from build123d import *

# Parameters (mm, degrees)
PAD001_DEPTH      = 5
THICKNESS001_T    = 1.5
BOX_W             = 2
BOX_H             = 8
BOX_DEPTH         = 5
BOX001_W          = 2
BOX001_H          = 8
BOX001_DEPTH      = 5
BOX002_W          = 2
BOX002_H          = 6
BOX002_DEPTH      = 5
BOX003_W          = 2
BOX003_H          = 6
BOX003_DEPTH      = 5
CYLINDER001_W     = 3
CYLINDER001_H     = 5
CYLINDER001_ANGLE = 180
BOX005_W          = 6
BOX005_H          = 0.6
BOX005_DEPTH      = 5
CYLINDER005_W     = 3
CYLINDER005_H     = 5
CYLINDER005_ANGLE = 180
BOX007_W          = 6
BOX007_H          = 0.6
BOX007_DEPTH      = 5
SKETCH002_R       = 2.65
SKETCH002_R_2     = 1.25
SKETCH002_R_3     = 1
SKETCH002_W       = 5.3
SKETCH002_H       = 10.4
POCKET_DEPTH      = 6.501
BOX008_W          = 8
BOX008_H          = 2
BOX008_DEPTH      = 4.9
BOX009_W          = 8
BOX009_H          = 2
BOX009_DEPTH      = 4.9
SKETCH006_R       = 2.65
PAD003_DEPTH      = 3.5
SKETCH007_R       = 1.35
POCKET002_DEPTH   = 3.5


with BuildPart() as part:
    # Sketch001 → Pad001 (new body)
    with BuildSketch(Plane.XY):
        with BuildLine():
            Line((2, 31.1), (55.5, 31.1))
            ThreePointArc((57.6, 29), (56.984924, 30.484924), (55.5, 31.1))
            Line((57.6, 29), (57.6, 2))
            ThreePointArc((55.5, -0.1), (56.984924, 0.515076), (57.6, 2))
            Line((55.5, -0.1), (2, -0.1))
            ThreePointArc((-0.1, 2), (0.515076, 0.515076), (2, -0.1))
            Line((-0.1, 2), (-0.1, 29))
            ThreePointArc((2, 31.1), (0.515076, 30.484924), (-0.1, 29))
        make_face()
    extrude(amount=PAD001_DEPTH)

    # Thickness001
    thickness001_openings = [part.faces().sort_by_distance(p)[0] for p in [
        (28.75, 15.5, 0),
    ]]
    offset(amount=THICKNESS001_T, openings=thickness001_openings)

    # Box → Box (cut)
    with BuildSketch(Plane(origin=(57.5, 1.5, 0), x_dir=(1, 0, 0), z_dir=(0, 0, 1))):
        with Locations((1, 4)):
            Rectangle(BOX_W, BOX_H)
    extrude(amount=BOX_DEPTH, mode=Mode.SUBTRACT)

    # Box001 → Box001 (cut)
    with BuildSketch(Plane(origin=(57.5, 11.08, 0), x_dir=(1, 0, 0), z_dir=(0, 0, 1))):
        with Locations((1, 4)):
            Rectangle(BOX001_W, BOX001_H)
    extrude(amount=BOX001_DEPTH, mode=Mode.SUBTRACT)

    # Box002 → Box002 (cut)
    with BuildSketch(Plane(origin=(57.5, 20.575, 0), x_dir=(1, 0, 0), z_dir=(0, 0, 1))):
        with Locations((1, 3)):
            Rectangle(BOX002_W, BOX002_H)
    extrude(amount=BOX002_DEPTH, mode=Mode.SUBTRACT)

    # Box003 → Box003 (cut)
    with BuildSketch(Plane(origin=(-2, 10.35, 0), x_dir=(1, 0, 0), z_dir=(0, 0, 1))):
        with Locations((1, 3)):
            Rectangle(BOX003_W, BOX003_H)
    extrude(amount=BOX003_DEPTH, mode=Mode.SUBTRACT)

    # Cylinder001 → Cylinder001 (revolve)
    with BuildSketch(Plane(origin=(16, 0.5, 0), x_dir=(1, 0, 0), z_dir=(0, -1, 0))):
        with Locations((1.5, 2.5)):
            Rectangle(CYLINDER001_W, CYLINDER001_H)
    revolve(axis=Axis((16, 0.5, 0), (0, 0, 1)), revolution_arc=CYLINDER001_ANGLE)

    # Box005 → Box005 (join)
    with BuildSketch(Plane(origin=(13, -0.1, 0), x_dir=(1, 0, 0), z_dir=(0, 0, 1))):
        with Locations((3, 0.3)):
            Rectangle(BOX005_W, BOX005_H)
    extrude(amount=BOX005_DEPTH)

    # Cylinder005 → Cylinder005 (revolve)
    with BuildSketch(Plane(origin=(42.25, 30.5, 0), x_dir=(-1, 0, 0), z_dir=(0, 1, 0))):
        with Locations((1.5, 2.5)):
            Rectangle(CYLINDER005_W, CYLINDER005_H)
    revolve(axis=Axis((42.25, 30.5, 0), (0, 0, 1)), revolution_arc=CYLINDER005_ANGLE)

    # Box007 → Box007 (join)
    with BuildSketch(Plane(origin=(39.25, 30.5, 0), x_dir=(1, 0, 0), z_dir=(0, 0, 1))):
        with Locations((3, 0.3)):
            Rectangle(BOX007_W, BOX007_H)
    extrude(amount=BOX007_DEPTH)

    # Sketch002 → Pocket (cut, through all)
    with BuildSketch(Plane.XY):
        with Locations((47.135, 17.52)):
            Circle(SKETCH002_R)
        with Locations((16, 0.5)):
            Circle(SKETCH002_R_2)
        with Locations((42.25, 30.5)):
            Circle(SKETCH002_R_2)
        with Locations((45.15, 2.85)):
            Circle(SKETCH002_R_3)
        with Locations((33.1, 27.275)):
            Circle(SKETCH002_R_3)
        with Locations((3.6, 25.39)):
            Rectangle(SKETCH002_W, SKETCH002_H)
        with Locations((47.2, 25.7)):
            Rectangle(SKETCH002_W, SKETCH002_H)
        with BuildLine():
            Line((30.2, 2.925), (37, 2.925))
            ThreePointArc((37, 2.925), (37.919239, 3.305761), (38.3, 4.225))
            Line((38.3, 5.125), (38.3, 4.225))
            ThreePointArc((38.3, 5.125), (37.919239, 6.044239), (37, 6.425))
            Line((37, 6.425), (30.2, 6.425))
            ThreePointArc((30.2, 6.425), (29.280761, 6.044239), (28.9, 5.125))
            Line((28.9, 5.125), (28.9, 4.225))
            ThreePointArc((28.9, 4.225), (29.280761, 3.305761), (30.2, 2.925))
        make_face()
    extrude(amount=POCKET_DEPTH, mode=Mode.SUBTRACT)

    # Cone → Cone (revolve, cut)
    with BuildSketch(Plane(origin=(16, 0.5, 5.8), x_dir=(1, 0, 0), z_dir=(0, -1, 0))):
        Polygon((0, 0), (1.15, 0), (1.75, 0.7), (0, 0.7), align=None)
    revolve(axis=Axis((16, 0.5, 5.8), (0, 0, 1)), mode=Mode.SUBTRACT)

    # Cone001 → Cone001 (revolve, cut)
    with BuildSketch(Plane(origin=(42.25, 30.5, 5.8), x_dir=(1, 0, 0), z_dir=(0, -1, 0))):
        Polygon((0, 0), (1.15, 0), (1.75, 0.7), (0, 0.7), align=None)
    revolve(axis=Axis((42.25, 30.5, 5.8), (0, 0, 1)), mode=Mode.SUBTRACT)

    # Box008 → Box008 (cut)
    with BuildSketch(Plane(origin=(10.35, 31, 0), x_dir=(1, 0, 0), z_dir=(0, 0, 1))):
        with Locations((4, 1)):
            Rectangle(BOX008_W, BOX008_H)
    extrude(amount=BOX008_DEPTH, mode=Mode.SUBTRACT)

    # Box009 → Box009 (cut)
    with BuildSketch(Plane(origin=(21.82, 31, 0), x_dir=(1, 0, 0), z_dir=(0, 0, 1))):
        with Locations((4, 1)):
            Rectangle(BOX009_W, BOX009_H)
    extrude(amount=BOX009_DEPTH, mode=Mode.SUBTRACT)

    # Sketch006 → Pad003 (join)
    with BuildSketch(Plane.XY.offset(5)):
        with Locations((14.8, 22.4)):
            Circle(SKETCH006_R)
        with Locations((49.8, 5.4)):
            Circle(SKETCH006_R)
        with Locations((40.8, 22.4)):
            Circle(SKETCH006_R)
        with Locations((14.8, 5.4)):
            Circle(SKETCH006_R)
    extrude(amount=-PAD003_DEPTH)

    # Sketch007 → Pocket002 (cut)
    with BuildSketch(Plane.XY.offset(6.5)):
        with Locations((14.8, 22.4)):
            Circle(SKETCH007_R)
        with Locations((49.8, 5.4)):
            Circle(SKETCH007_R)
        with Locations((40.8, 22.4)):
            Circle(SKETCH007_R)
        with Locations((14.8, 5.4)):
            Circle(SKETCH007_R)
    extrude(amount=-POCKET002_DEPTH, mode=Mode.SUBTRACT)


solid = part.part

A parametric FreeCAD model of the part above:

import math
import FreeCAD as App
import Part
import Sketcher
from FreeCAD import Vector


def faces_at(feature, points):
    """Names of the faces that lie closest to the given points."""
    faces = feature.Shape.Faces
    near = lambda p: min(range(len(faces)), key=lambda i: faces[i].distToShape(Part.Vertex(*p))[0])
    return sorted({f"Face{near(p) + 1}" for p in points})

doc = App.newDocument("Part")
body = doc.addObject("PartDesign::Body", "Body")

sketch1 = body.newObject("Sketcher::SketchObject", "Sketch")
sketch1.AttachmentSupport = (doc.getObject("XY_Plane"), [""])
sketch1.MapMode = "FlatFace"
sketch1.addGeometry([
    Part.LineSegment(Vector(55.5, 31.1, 0), Vector(2, 31.1, 0)),
    Part.ArcOfCircle(Part.Circle(Vector(2, 29, 0), Vector(0, 0, 1), 2.1), math.radians(90), math.radians(180)),
    Part.LineSegment(Vector(-0.1, 29, 0), Vector(-0.1, 2, 0)),
    Part.ArcOfCircle(Part.Circle(Vector(2, 2, 0), Vector(0, 0, 1), 2.1), math.radians(-180), math.radians(-90)),
    Part.LineSegment(Vector(2, -0.1, 0), Vector(55.5, -0.1, 0)),
    Part.ArcOfCircle(Part.Circle(Vector(55.5, 2, 0), Vector(0, 0, 1), 2.1), math.radians(-90), math.radians(0)),
    Part.LineSegment(Vector(57.6, 2, 0), Vector(57.6, 29, 0)),
    Part.ArcOfCircle(Part.Circle(Vector(55.5, 29, 0), Vector(0, 0, 1), 2.1), math.radians(0), math.radians(90)),
], False)
sketch1.addConstraint([
    Sketcher.Constraint("Tangent", 0, 2, 1, 1),
    Sketcher.Constraint("Tangent", 1, 2, 2, 1),
    Sketcher.Constraint("Tangent", 2, 2, 3, 1),
    Sketcher.Constraint("Tangent", 3, 2, 4, 1),
    Sketcher.Constraint("Tangent", 4, 2, 5, 1),
    Sketcher.Constraint("Tangent", 5, 2, 6, 1),
    Sketcher.Constraint("Tangent", 6, 2, 7, 1),
    Sketcher.Constraint("Tangent", 7, 2, 0, 1),
    Sketcher.Constraint("Horizontal", 0),
    Sketcher.Constraint("Vertical", 2),
    Sketcher.Constraint("Horizontal", 4),
    Sketcher.Constraint("Vertical", 6),
    Sketcher.Constraint("Equal", 1, 3),
    Sketcher.Constraint("Equal", 3, 5),
    Sketcher.Constraint("Equal", 5, 7),
    Sketcher.Constraint("Radius", 1, 2.100001),
    Sketcher.Constraint("DistanceY", 2, 2, 2, 1, 27.0),
    Sketcher.Constraint("DistanceX", 0, 2, 0, 1, 53.5),
    Sketcher.Constraint("DistanceX", -1, 1, 1, 3, 2.000001),
    Sketcher.Constraint("DistanceY", -1, 1, 1, 3, 28.999999),
])
pad1 = body.newObject("PartDesign::Pad", "Pad")
pad1.Profile = sketch1
pad1.Length = 5
doc.recompute()

thickness = body.newObject("PartDesign::Thickness", "Thickness")
thickness.Base = (pad1, faces_at(pad1, [(28.75, 15.5, 0)]))
thickness.Value = 1.5
thickness.Reversed = False
thickness.Join = "Arc"

sketch2 = body.newObject("Sketcher::SketchObject", "Sketch001")
sketch2.AttachmentSupport = (doc.getObject("XY_Plane"), [""])
sketch2.MapMode = "FlatFace"
sketch2.addGeometry([
    Part.LineSegment(Vector(57.5, 9.5, 0), Vector(57.5, 1.5, 0)),
    Part.LineSegment(Vector(57.5, 1.5, 0), Vector(59.5, 1.5, 0)),
    Part.LineSegment(Vector(59.5, 1.5, 0), Vector(59.5, 9.5, 0)),
    Part.LineSegment(Vector(59.5, 9.5, 0), Vector(57.5, 9.5, 0)),
], False)
sketch2.addConstraint([
    Sketcher.Constraint("Coincident", 0, 2, 1, 1),
    Sketcher.Constraint("Coincident", 1, 2, 2, 1),
    Sketcher.Constraint("Coincident", 2, 2, 3, 1),
    Sketcher.Constraint("Coincident", 3, 2, 0, 1),
    Sketcher.Constraint("Vertical", 0),
    Sketcher.Constraint("Horizontal", 1),
    Sketcher.Constraint("Vertical", 2),
    Sketcher.Constraint("Horizontal", 3),
    Sketcher.Constraint("DistanceX", 1, 1, 1, 2, 2.0),
    Sketcher.Constraint("DistanceY", 0, 2, 0, 1, 8.0),
    Sketcher.Constraint("DistanceX", -1, 1, 0, 2, 57.5),
    Sketcher.Constraint("DistanceY", -1, 1, 0, 2, 1.5),
])
pocket1 = body.newObject("PartDesign::Pocket", "Pocket")
pocket1.Profile = sketch2
pocket1.Length = 5
pocket1.Reversed = True

sketch3 = body.newObject("Sketcher::SketchObject", "Sketch002")
sketch3.AttachmentSupport = (doc.getObject("XY_Plane"), [""])
sketch3.MapMode = "FlatFace"
sketch3.addGeometry([
    Part.LineSegment(Vector(57.5, 19.1, 0), Vector(57.5, 11.1, 0)),
    Part.LineSegment(Vector(57.5, 11.1, 0), Vector(59.5, 11.1, 0)),
    Part.LineSegment(Vector(59.5, 11.1, 0), Vector(59.5, 19.1, 0)),
    Part.LineSegment(Vector(59.5, 19.1, 0), Vector(57.5, 19.1, 0)),
], False)
sketch3.addConstraint([
    Sketcher.Constraint("Coincident", 0, 2, 1, 1),
    Sketcher.Constraint("Coincident", 1, 2, 2, 1),
    Sketcher.Constraint("Coincident", 2, 2, 3, 1),
    Sketcher.Constraint("Coincident", 3, 2, 0, 1),
    Sketcher.Constraint("Vertical", 0),
    Sketcher.Constraint("Horizontal", 1),
    Sketcher.Constraint("Vertical", 2),
    Sketcher.Constraint("Horizontal", 3),
    Sketcher.Constraint("DistanceX", 1, 1, 1, 2, 2.0),
    Sketcher.Constraint("DistanceY", 0, 2, 0, 1, 8.0),
    Sketcher.Constraint("DistanceX", -1, 1, 0, 2, 57.5),
    Sketcher.Constraint("DistanceY", -1, 1, 0, 2, 11.08),
])
pocket2 = body.newObject("PartDesign::Pocket", "Pocket001")
pocket2.Profile = sketch3
pocket2.Length = 5
pocket2.Reversed = True

sketch4 = body.newObject("Sketcher::SketchObject", "Sketch003")
sketch4.AttachmentSupport = (doc.getObject("XY_Plane"), [""])
sketch4.MapMode = "FlatFace"
sketch4.addGeometry([
    Part.LineSegment(Vector(57.5, 26.6, 0), Vector(57.5, 20.6, 0)),
    Part.LineSegment(Vector(57.5, 20.6, 0), Vector(59.5, 20.6, 0)),
    Part.LineSegment(Vector(59.5, 20.6, 0), Vector(59.5, 26.6, 0)),
    Part.LineSegment(Vector(59.5, 26.6, 0), Vector(57.5, 26.6, 0)),
], False)
sketch4.addConstraint([
    Sketcher.Constraint("Coincident", 0, 2, 1, 1),
    Sketcher.Constraint("Coincident", 1, 2, 2, 1),
    Sketcher.Constraint("Coincident", 2, 2, 3, 1),
    Sketcher.Constraint("Coincident", 3, 2, 0, 1),
    Sketcher.Constraint("Vertical", 0),
    Sketcher.Constraint("Horizontal", 1),
    Sketcher.Constraint("Vertical", 2),
    Sketcher.Constraint("Horizontal", 3),
    Sketcher.Constraint("DistanceX", 1, 1, 1, 2, 2.0),
    Sketcher.Constraint("DistanceY", 0, 2, 0, 1, 6.0),
    Sketcher.Constraint("DistanceX", -1, 1, 0, 2, 57.5),
    Sketcher.Constraint("DistanceY", -1, 1, 0, 2, 20.575),
])
pocket3 = body.newObject("PartDesign::Pocket", "Pocket002")
pocket3.Profile = sketch4
pocket3.Length = 5
pocket3.Reversed = True

sketch5 = body.newObject("Sketcher::SketchObject", "Sketch004")
sketch5.AttachmentSupport = (doc.getObject("XY_Plane"), [""])
sketch5.MapMode = "FlatFace"
sketch5.addGeometry([
    Part.LineSegment(Vector(-2, 16.4, 0), Vector(-2, 10.3, 0)),
    Part.LineSegment(Vector(-2, 10.3, 0), Vector(0, 10.3, 0)),
    Part.LineSegment(Vector(0, 10.3, 0), Vector(0, 16.4, 0)),
    Part.LineSegment(Vector(0, 16.4, 0), Vector(-2, 16.4, 0)),
], False)
sketch5.addConstraint([
    Sketcher.Constraint("Coincident", 0, 2, 1, 1),
    Sketcher.Constraint("Coincident", 1, 2, 2, 1),
    Sketcher.Constraint("Coincident", 2, 2, 3, 1),
    Sketcher.Constraint("Coincident", 3, 2, 0, 1),
    Sketcher.Constraint("Vertical", 0),
    Sketcher.Constraint("Horizontal", 1),
    Sketcher.Constraint("Vertical", 2),
    Sketcher.Constraint("Horizontal", 3),
    Sketcher.Constraint("PointOnObject", 1, 2, -2),
    Sketcher.Constraint("DistanceX", 1, 1, 1, 2, 2.0),
    Sketcher.Constraint("DistanceY", 0, 2, 0, 1, 6.0),
    Sketcher.Constraint("DistanceY", -1, 1, 0, 2, 10.35),
])
pocket4 = body.newObject("PartDesign::Pocket", "Pocket003")
pocket4.Profile = sketch5
pocket4.Length = 5
pocket4.Reversed = True

sketch6 = body.newObject("Sketcher::SketchObject", "Sketch005")
sketch6.AttachmentSupport = (doc.getObject("XZ_Plane"), [""])
sketch6.MapMode = "FlatFace"
sketch6.AttachmentOffset = App.Placement(Vector(0, 0, -0.5), App.Rotation())
sketch6.addGeometry([
    Part.LineSegment(Vector(16, 5, 0), Vector(16, 0, 0)),
    Part.LineSegment(Vector(16, 0, 0), Vector(19, 0, 0)),
    Part.LineSegment(Vector(19, 0, 0), Vector(19, 5, 0)),
    Part.LineSegment(Vector(19, 5, 0), Vector(16, 5, 0)),
], False)
sketch6.addGeometry(Part.LineSegment(Vector(16, 0, 0), Vector(16, 5, 0)), True)
sketch6.addConstraint([
    Sketcher.Constraint("Coincident", 0, 2, 1, 1),
    Sketcher.Constraint("Coincident", 1, 2, 2, 1),
    Sketcher.Constraint("Coincident", 2, 2, 3, 1),
    Sketcher.Constraint("Coincident", 3, 2, 0, 1),
    Sketcher.Constraint("Vertical", 0),
    Sketcher.Constraint("Horizontal", 1),
    Sketcher.Constraint("Vertical", 2),
    Sketcher.Constraint("Horizontal", 3),
    Sketcher.Constraint("Vertical", 4),
    Sketcher.Constraint("Coincident", 4, 1, 0, 2),
    Sketcher.Constraint("PointOnObject", 0, 2, -1),
    Sketcher.Constraint("Horizontal", 2, 2, 4, 2),
    Sketcher.Constraint("DistanceX", 1, 1, 1, 2, 3.0),
    Sketcher.Constraint("DistanceY", 0, 2, 0, 1, 5.0),
    Sketcher.Constraint("DistanceX", -1, 1, 0, 2, 16.0),
])
revolution = body.newObject("PartDesign::Revolution", "Revolution")
revolution.Profile = sketch6
revolution.ReferenceAxis = (sketch6, ["Axis0"])
revolution.Angle = 180

sketch7 = body.newObject("Sketcher::SketchObject", "Sketch006")
sketch7.AttachmentSupport = (doc.getObject("XY_Plane"), [""])
sketch7.MapMode = "FlatFace"
sketch7.addGeometry([
    Part.LineSegment(Vector(13, 0.5, 0), Vector(13, -0.1, 0)),
    Part.LineSegment(Vector(13, -0.1, 0), Vector(19, -0.1, 0)),
    Part.LineSegment(Vector(19, -0.1, 0), Vector(19, 0.5, 0)),
    Part.LineSegment(Vector(19, 0.5, 0), Vector(13, 0.5, 0)),
], False)
sketch7.addConstraint([
    Sketcher.Constraint("Coincident", 0, 2, 1, 1),
    Sketcher.Constraint("Coincident", 1, 2, 2, 1),
    Sketcher.Constraint("Coincident", 2, 2, 3, 1),
    Sketcher.Constraint("Coincident", 3, 2, 0, 1),
    Sketcher.Constraint("Vertical", 0),
    Sketcher.Constraint("Horizontal", 1),
    Sketcher.Constraint("Vertical", 2),
    Sketcher.Constraint("Horizontal", 3),
    Sketcher.Constraint("DistanceX", 1, 1, 1, 2, 6.0),
    Sketcher.Constraint("DistanceY", 0, 2, 0, 1, 0.6),
    Sketcher.Constraint("DistanceX", -1, 1, 0, 2, 13.0),
    Sketcher.Constraint("DistanceY", 0, 2, -1, 1, 0.1),
])
pad2 = body.newObject("PartDesign::Pad", "Pad001")
pad2.Profile = sketch7
pad2.Length = 5

sketch8 = body.newObject("Sketcher::SketchObject", "Sketch007")
sketch8.AttachmentSupport = (doc.getObject("XZ_Plane"), [""])
sketch8.MapMode = "FlatFace"
sketch8.AttachmentOffset = App.Placement(Vector(0, 0, -30.5), App.Rotation())
sketch8.addGeometry([
    Part.LineSegment(Vector(42.2, 5, 0), Vector(42.2, 0, 0)),
    Part.LineSegment(Vector(42.2, 0, 0), Vector(39.2, 0, 0)),
    Part.LineSegment(Vector(39.2, 0, 0), Vector(39.2, 5, 0)),
    Part.LineSegment(Vector(39.2, 5, 0), Vector(42.2, 5, 0)),
], False)
sketch8.addGeometry(Part.LineSegment(Vector(42.2, 0, 0), Vector(42.2, 5, 0)), True)
sketch8.addConstraint([
    Sketcher.Constraint("Coincident", 0, 2, 1, 1),
    Sketcher.Constraint("Coincident", 1, 2, 2, 1),
    Sketcher.Constraint("Coincident", 2, 2, 3, 1),
    Sketcher.Constraint("Coincident", 3, 2, 0, 1),
    Sketcher.Constraint("Vertical", 0),
    Sketcher.Constraint("Horizontal", 1),
    Sketcher.Constraint("Vertical", 2),
    Sketcher.Constraint("Horizontal", 3),
    Sketcher.Constraint("Vertical", 4),
    Sketcher.Constraint("Coincident", 4, 1, 0, 2),
    Sketcher.Constraint("PointOnObject", 0, 2, -1),
    Sketcher.Constraint("Horizontal", 2, 2, 4, 2),
    Sketcher.Constraint("DistanceX", 1, 2, 1, 1, 3.0),
    Sketcher.Constraint("DistanceY", 0, 2, 0, 1, 5.0),
    Sketcher.Constraint("DistanceX", -1, 1, 0, 2, 42.25),
])
revolution2 = body.newObject("PartDesign::Revolution", "Revolution001")
revolution2.Profile = sketch8
revolution2.ReferenceAxis = (sketch8, ["Axis0"])
revolution2.Angle = 180

sketch9 = body.newObject("Sketcher::SketchObject", "Sketch008")
sketch9.AttachmentSupport = (doc.getObject("XY_Plane"), [""])
sketch9.MapMode = "FlatFace"
sketch9.addGeometry([
    Part.LineSegment(Vector(39.2, 31.1, 0), Vector(39.2, 30.5, 0)),
    Part.LineSegment(Vector(39.2, 30.5, 0), Vector(45.2, 30.5, 0)),
    Part.LineSegment(Vector(45.2, 30.5, 0), Vector(45.2, 31.1, 0)),
    Part.LineSegment(Vector(45.2, 31.1, 0), Vector(39.2, 31.1, 0)),
], False)
sketch9.addConstraint([
    Sketcher.Constraint("Coincident", 0, 2, 1, 1),
    Sketcher.Constraint("Coincident", 1, 2, 2, 1),
    Sketcher.Constraint("Coincident", 2, 2, 3, 1),
    Sketcher.Constraint("Coincident", 3, 2, 0, 1),
    Sketcher.Constraint("Vertical", 0),
    Sketcher.Constraint("Horizontal", 1),
    Sketcher.Constraint("Vertical", 2),
    Sketcher.Constraint("Horizontal", 3),
    Sketcher.Constraint("DistanceX", 1, 1, 1, 2, 6.0),
    Sketcher.Constraint("DistanceY", 0, 2, 0, 1, 0.6),
    Sketcher.Constraint("DistanceY", -1, 1, 0, 2, 30.5),
    Sketcher.Constraint("DistanceX", -1, 1, 0, 2, 39.25),
])
pad3 = body.newObject("PartDesign::Pad", "Pad002")
pad3.Profile = sketch9
pad3.Length = 5

sketch10 = body.newObject("Sketcher::SketchObject", "Sketch009")
sketch10.AttachmentSupport = (doc.getObject("XY_Plane"), [""])
sketch10.MapMode = "FlatFace"
sketch10.addGeometry([
    Part.Circle(Vector(47.1, 17.5, 0), Vector(0, 0, 1), 2.6),
    Part.Circle(Vector(16, 0.5, 0), Vector(0, 0, 1), 1.2),
    Part.Circle(Vector(42.2, 30.5, 0), Vector(0, 0, 1), 1.2),
    Part.Circle(Vector(45.1, 2.9, 0), Vector(0, 0, 1), 1),
    Part.Circle(Vector(33.1, 27.3, 0), Vector(0, 0, 1), 1),
    Part.LineSegment(Vector(0.9, 30.6, 0), Vector(0.9, 20.2, 0)),
    Part.LineSegment(Vector(0.9, 20.2, 0), Vector(6.2, 20.2, 0)),
    Part.LineSegment(Vector(6.2, 20.2, 0), Vector(6.2, 30.6, 0)),
    Part.LineSegment(Vector(6.2, 30.6, 0), Vector(0.9, 30.6, 0)),
    Part.LineSegment(Vector(44.5, 30.9, 0), Vector(44.5, 20.5, 0)),
    Part.LineSegment(Vector(44.5, 20.5, 0), Vector(49.9, 20.5, 0)),
    Part.LineSegment(Vector(49.9, 20.5, 0), Vector(49.9, 30.9, 0)),
    Part.LineSegment(Vector(49.9, 30.9, 0), Vector(44.5, 30.9, 0)),
    Part.LineSegment(Vector(30.2, 2.9, 0), Vector(37, 2.9, 0)),
    Part.ArcOfCircle(Part.Circle(Vector(37, 4.2, 0), Vector(0, 0, 1), 1.3), math.radians(-90), math.radians(0)),
    Part.LineSegment(Vector(38.3, 4.2, 0), Vector(38.3, 5.1, 0)),
    Part.ArcOfCircle(Part.Circle(Vector(37, 5.1, 0), Vector(0, 0, 1), 1.3), math.radians(0), math.radians(90)),
    Part.LineSegment(Vector(37, 6.4, 0), Vector(30.2, 6.4, 0)),
    Part.ArcOfCircle(Part.Circle(Vector(30.2, 5.1, 0), Vector(0, 0, 1), 1.3), math.radians(90), math.radians(180)),
    Part.LineSegment(Vector(28.9, 5.1, 0), Vector(28.9, 4.2, 0)),
    Part.ArcOfCircle(Part.Circle(Vector(30.2, 4.2, 0), Vector(0, 0, 1), 1.3), math.radians(180), math.radians(270)),
], False)
sketch10.addConstraint([
    Sketcher.Constraint("Coincident", 5, 2, 6, 1),
    Sketcher.Constraint("Coincident", 6, 2, 7, 1),
    Sketcher.Constraint("Coincident", 7, 2, 8, 1),
    Sketcher.Constraint("Coincident", 8, 2, 5, 1),
    Sketcher.Constraint("Coincident", 9, 2, 10, 1),
    Sketcher.Constraint("Coincident", 10, 2, 11, 1),
    Sketcher.Constraint("Coincident", 11, 2, 12, 1),
    Sketcher.Constraint("Coincident", 12, 2, 9, 1),
    Sketcher.Constraint("Tangent", 13, 2, 14, 1),
    Sketcher.Constraint("Tangent", 14, 2, 15, 1),
    Sketcher.Constraint("Tangent", 15, 2, 16, 1),
    Sketcher.Constraint("Tangent", 16, 2, 17, 1),
    Sketcher.Constraint("Tangent", 17, 2, 18, 1),
    Sketcher.Constraint("Tangent", 18, 2, 19, 1),
    Sketcher.Constraint("Tangent", 19, 2, 20, 1),
    Sketcher.Constraint("Tangent", 20, 2, 13, 1),
    Sketcher.Constraint("Vertical", 5),
    Sketcher.Constraint("Horizontal", 6),
    Sketcher.Constraint("Vertical", 7),
    Sketcher.Constraint("Horizontal", 8),
    Sketcher.Constraint("Vertical", 9),
    Sketcher.Constraint("Horizontal", 10),
    Sketcher.Constraint("Vertical", 11),
    Sketcher.Constraint("Horizontal", 12),
    Sketcher.Constraint("Horizontal", 13),
    Sketcher.Constraint("Vertical", 15),
    Sketcher.Constraint("Horizontal", 17),
    Sketcher.Constraint("Vertical", 19),
    Sketcher.Constraint("Equal", 1, 2),
    Sketcher.Constraint("Equal", 3, 4),
    Sketcher.Constraint("Equal", 14, 16),
    Sketcher.Constraint("Equal", 16, 18),
    Sketcher.Constraint("Equal", 18, 20),
    Sketcher.Constraint("Equal", 8, 10),
    Sketcher.Constraint("Equal", 7, 9),
    Sketcher.Constraint("Diameter", 3, 2.0),
    Sketcher.Constraint("Diameter", 0, 5.3),
    Sketcher.Constraint("Diameter", 1, 2.5),
    Sketcher.Constraint("Radius", 14, 1.299999),
    Sketcher.Constraint("DistanceX", 6, 1, 6, 2, 5.3),
    Sketcher.Constraint("DistanceX", 13, 1, 13, 2, 6.8),
    Sketcher.Constraint("DistanceY", 5, 2, 5, 1, 10.4),
    Sketcher.Constraint("DistanceY", 15, 1, 15, 2, 0.9),
    Sketcher.Constraint("DistanceX", -1, 1, 1, 3, 16.0),
    Sketcher.Constraint("DistanceX", -1, 1, 14, 3, 37.000001),
    Sketcher.Constraint("DistanceY", 1, 3, 2, 3, 30.0),
    Sketcher.Constraint("DistanceY", 9, 2, 2, 3, 10.0),
    Sketcher.Constraint("DistanceY", -1, 1, 1, 3, 0.5),
    Sketcher.Constraint("DistanceX", -1, 1, 4, 3, 33.1),
    Sketcher.Constraint("DistanceX", 2, 3, 3, 3, 2.9),
    Sketcher.Constraint("DistanceX", 2, 3, 9, 2, 2.3),
    Sketcher.Constraint("DistanceY", -1, 1, 0, 3, 17.52),
    Sketcher.Constraint("DistanceX", -1, 1, 2, 3, 42.25),
    Sketcher.Constraint("DistanceY", -1, 1, 3, 3, 2.85),
    Sketcher.Constraint("DistanceX", -1, 1, 5, 2, 0.95),
    Sketcher.Constraint("DistanceY", -1, 1, 5, 2, 20.19),
    Sketcher.Constraint("DistanceY", 14, 3, 4, 3, 23.050001),
    Sketcher.Constraint("DistanceX", -1, 1, 0, 3, 47.135),
    Sketcher.Constraint("DistanceY", -1, 1, 4, 3, 27.275),
])
pocket5 = body.newObject("PartDesign::Pocket", "Pocket004")
pocket5.Profile = sketch10
pocket5.Type = "ThroughAll"
pocket5.Reversed = True

sketch11 = body.newObject("Sketcher::SketchObject", "Sketch010")
sketch11.AttachmentSupport = (doc.getObject("XZ_Plane"), [""])
sketch11.MapMode = "FlatFace"
sketch11.AttachmentOffset = App.Placement(Vector(0, 0, -0.5), App.Rotation())
sketch11.addGeometry([
    Part.LineSegment(Vector(16, 5.8, 0), Vector(17.1, 5.8, 0)),
    Part.LineSegment(Vector(17.1, 5.8, 0), Vector(17.8, 6.5, 0)),
    Part.LineSegment(Vector(17.8, 6.5, 0), Vector(16, 6.5, 0)),
    Part.LineSegment(Vector(16, 6.5, 0), Vector(16, 5.8, 0)),
], False)
sketch11.addGeometry(Part.LineSegment(Vector(16, 5.8, 0), Vector(16, 6.5, 0)), True)
sketch11.addConstraint([
    Sketcher.Constraint("Coincident", 0, 2, 1, 1),
    Sketcher.Constraint("Coincident", 1, 2, 2, 1),
    Sketcher.Constraint("Coincident", 2, 2, 3, 1),
    Sketcher.Constraint("Coincident", 3, 2, 0, 1),
    Sketcher.Constraint("Horizontal", 0),
    Sketcher.Constraint("Horizontal", 2),
    Sketcher.Constraint("Vertical", 3),
    Sketcher.Constraint("Vertical", 4),
    Sketcher.Constraint("Coincident", 4, 1, 3, 2),
    Sketcher.Constraint("Horizontal", 1, 2, 4, 2),
    Sketcher.Constraint("DistanceY", 3, 2, 3, 1, 0.7),
    Sketcher.Constraint("DistanceX", -1, 1, 2, 2, 16.0),
    Sketcher.Constraint("DistanceX", 0, 1, 0, 2, 1.15),
    Sketcher.Constraint("DistanceX", 2, 2, 2, 1, 1.75),
    Sketcher.Constraint("DistanceY", -1, 1, 0, 2, 5.8),
])
groove = body.newObject("PartDesign::Groove", "Groove")
groove.Profile = sketch11
groove.ReferenceAxis = (sketch11, ["Axis0"])
groove.Angle = 360

sketch12 = body.newObject("Sketcher::SketchObject", "Sketch011")
sketch12.AttachmentSupport = (doc.getObject("XZ_Plane"), [""])
sketch12.MapMode = "FlatFace"
sketch12.AttachmentOffset = App.Placement(Vector(0, 0, -30.5), App.Rotation())
sketch12.addGeometry([
    Part.LineSegment(Vector(42.2, 5.8, 0), Vector(43.4, 5.8, 0)),
    Part.LineSegment(Vector(43.4, 5.8, 0), Vector(44, 6.5, 0)),
    Part.LineSegment(Vector(44, 6.5, 0), Vector(42.2, 6.5, 0)),
    Part.LineSegment(Vector(42.2, 6.5, 0), Vector(42.2, 5.8, 0)),
], False)
sketch12.addGeometry(Part.LineSegment(Vector(42.2, 5.8, 0), Vector(42.2, 6.5, 0)), True)
sketch12.addConstraint([
    Sketcher.Constraint("Coincident", 0, 2, 1, 1),
    Sketcher.Constraint("Coincident", 1, 2, 2, 1),
    Sketcher.Constraint("Coincident", 2, 2, 3, 1),
    Sketcher.Constraint("Coincident", 3, 2, 0, 1),
    Sketcher.Constraint("Horizontal", 0),
    Sketcher.Constraint("Horizontal", 2),
    Sketcher.Constraint("Vertical", 3),
    Sketcher.Constraint("Vertical", 4),
    Sketcher.Constraint("Coincident", 4, 1, 3, 2),
    Sketcher.Constraint("Horizontal", 1, 2, 4, 2),
    Sketcher.Constraint("DistanceY", 3, 2, 3, 1, 0.7),
    Sketcher.Constraint("DistanceX", -1, 1, 1, 2, 44.0),
    Sketcher.Constraint("DistanceX", 0, 1, 0, 2, 1.15),
    Sketcher.Constraint("DistanceX", 2, 2, 2, 1, 1.75),
    Sketcher.Constraint("DistanceY", -1, 1, 0, 2, 5.8),
])
groove2 = body.newObject("PartDesign::Groove", "Groove001")
groove2.Profile = sketch12
groove2.ReferenceAxis = (sketch12, ["Axis0"])
groove2.Angle = 360

sketch13 = body.newObject("Sketcher::SketchObject", "Sketch012")
sketch13.AttachmentSupport = (doc.getObject("XY_Plane"), [""])
sketch13.MapMode = "FlatFace"
sketch13.addGeometry([
    Part.LineSegment(Vector(10.3, 33, 0), Vector(10.3, 31, 0)),
    Part.LineSegment(Vector(10.3, 31, 0), Vector(18.4, 31, 0)),
    Part.LineSegment(Vector(18.4, 31, 0), Vector(18.4, 33, 0)),
    Part.LineSegment(Vector(18.4, 33, 0), Vector(10.3, 33, 0)),
], False)
sketch13.addConstraint([
    Sketcher.Constraint("Coincident", 0, 2, 1, 1),
    Sketcher.Constraint("Coincident", 1, 2, 2, 1),
    Sketcher.Constraint("Coincident", 2, 2, 3, 1),
    Sketcher.Constraint("Coincident", 3, 2, 0, 1),
    Sketcher.Constraint("Vertical", 0),
    Sketcher.Constraint("Horizontal", 1),
    Sketcher.Constraint("Vertical", 2),
    Sketcher.Constraint("Horizontal", 3),
    Sketcher.Constraint("DistanceX", 1, 1, 1, 2, 8.0),
    Sketcher.Constraint("DistanceY", 0, 2, 0, 1, 2.0),
    Sketcher.Constraint("DistanceY", -1, 1, 0, 2, 31.0),
    Sketcher.Constraint("DistanceX", -1, 1, 0, 2, 10.35),
])
pocket6 = body.newObject("PartDesign::Pocket", "Pocket005")
pocket6.Profile = sketch13
pocket6.Length = 4.9
pocket6.Reversed = True

sketch14 = body.newObject("Sketcher::SketchObject", "Sketch013")
sketch14.AttachmentSupport = (doc.getObject("XY_Plane"), [""])
sketch14.MapMode = "FlatFace"
sketch14.addGeometry([
    Part.LineSegment(Vector(21.8, 33, 0), Vector(21.8, 31, 0)),
    Part.LineSegment(Vector(21.8, 31, 0), Vector(29.8, 31, 0)),
    Part.LineSegment(Vector(29.8, 31, 0), Vector(29.8, 33, 0)),
    Part.LineSegment(Vector(29.8, 33, 0), Vector(21.8, 33, 0)),
], False)
sketch14.addConstraint([
    Sketcher.Constraint("Coincident", 0, 2, 1, 1),
    Sketcher.Constraint("Coincident", 1, 2, 2, 1),
    Sketcher.Constraint("Coincident", 2, 2, 3, 1),
    Sketcher.Constraint("Coincident", 3, 2, 0, 1),
    Sketcher.Constraint("Vertical", 0),
    Sketcher.Constraint("Horizontal", 1),
    Sketcher.Constraint("Vertical", 2),
    Sketcher.Constraint("Horizontal", 3),
    Sketcher.Constraint("DistanceX", 1, 1, 1, 2, 8.0),
    Sketcher.Constraint("DistanceY", 0, 2, 0, 1, 2.0),
    Sketcher.Constraint("DistanceY", -1, 1, 0, 2, 31.0),
    Sketcher.Constraint("DistanceX", -1, 1, 0, 2, 21.82),
])
pocket7 = body.newObject("PartDesign::Pocket", "Pocket006")
pocket7.Profile = sketch14
pocket7.Length = 4.9
pocket7.Reversed = True

sketch15 = body.newObject("Sketcher::SketchObject", "Sketch014")
sketch15.AttachmentSupport = (doc.getObject("XY_Plane"), [""])
sketch15.MapMode = "FlatFace"
sketch15.AttachmentOffset = App.Placement(Vector(0, 0, 5), App.Rotation())
sketch15.addGeometry([
    Part.Circle(Vector(14.8, 22.4, 0), Vector(0, 0, 1), 2.6),
    Part.Circle(Vector(49.8, 5.4, 0), Vector(0, 0, 1), 2.6),
    Part.Circle(Vector(40.8, 22.4, 0), Vector(0, 0, 1), 2.6),
    Part.Circle(Vector(14.8, 5.4, 0), Vector(0, 0, 1), 2.6),
], False)
sketch15.addConstraint([
    Sketcher.Constraint("Equal", 0, 1),
    Sketcher.Constraint("Equal", 1, 2),
    Sketcher.Constraint("Equal", 2, 3),
    Sketcher.Constraint("Horizontal", 0, 3, 2, 3),
    Sketcher.Constraint("Horizontal", 1, 3, 3, 3),
    Sketcher.Constraint("Vertical", 0, 3, 3, 3),
    Sketcher.Constraint("Diameter", 0, 5.3),
    Sketcher.Constraint("DistanceX", 0, 3, 1, 3, 35.0),
    Sketcher.Constraint("DistanceY", 1, 3, 0, 3, 17.0),
    Sketcher.Constraint("DistanceX", 2, 3, 1, 3, 9.0),
    Sketcher.Constraint("DistanceX", -1, 1, 0, 3, 14.8),
    Sketcher.Constraint("DistanceY", -1, 1, 0, 3, 22.4),
])
pad4 = body.newObject("PartDesign::Pad", "Pad003")
pad4.Profile = sketch15
pad4.Length = 3.5
pad4.Reversed = True

sketch16 = body.newObject("Sketcher::SketchObject", "Sketch015")
sketch16.AttachmentSupport = (doc.getObject("XY_Plane"), [""])
sketch16.MapMode = "FlatFace"
sketch16.AttachmentOffset = App.Placement(Vector(0, 0, 6.5), App.Rotation())
sketch16.addGeometry([
    Part.Circle(Vector(14.8, 22.4, 0), Vector(0, 0, 1), 1.4),
    Part.Circle(Vector(49.8, 5.4, 0), Vector(0, 0, 1), 1.4),
    Part.Circle(Vector(40.8, 22.4, 0), Vector(0, 0, 1), 1.4),
    Part.Circle(Vector(14.8, 5.4, 0), Vector(0, 0, 1), 1.4),
], False)
sketch16.addConstraint([
    Sketcher.Constraint("Equal", 0, 1),
    Sketcher.Constraint("Equal", 1, 2),
    Sketcher.Constraint("Equal", 2, 3),
    Sketcher.Constraint("Horizontal", 0, 3, 2, 3),
    Sketcher.Constraint("Horizontal", 1, 3, 3, 3),
    Sketcher.Constraint("Vertical", 0, 3, 3, 3),
    Sketcher.Constraint("Diameter", 0, 2.7),
    Sketcher.Constraint("DistanceX", 0, 3, 1, 3, 35.0),
    Sketcher.Constraint("DistanceY", 1, 3, 0, 3, 17.0),
    Sketcher.Constraint("DistanceX", 2, 3, 1, 3, 9.0),
    Sketcher.Constraint("DistanceX", -1, 1, 0, 3, 14.8),
    Sketcher.Constraint("DistanceY", -1, 1, 0, 3, 22.4),
])
pocket8 = body.newObject("PartDesign::Pocket", "Pocket007")
pocket8.Profile = sketch16
pocket8.Length = 3.5

doc.recompute()
